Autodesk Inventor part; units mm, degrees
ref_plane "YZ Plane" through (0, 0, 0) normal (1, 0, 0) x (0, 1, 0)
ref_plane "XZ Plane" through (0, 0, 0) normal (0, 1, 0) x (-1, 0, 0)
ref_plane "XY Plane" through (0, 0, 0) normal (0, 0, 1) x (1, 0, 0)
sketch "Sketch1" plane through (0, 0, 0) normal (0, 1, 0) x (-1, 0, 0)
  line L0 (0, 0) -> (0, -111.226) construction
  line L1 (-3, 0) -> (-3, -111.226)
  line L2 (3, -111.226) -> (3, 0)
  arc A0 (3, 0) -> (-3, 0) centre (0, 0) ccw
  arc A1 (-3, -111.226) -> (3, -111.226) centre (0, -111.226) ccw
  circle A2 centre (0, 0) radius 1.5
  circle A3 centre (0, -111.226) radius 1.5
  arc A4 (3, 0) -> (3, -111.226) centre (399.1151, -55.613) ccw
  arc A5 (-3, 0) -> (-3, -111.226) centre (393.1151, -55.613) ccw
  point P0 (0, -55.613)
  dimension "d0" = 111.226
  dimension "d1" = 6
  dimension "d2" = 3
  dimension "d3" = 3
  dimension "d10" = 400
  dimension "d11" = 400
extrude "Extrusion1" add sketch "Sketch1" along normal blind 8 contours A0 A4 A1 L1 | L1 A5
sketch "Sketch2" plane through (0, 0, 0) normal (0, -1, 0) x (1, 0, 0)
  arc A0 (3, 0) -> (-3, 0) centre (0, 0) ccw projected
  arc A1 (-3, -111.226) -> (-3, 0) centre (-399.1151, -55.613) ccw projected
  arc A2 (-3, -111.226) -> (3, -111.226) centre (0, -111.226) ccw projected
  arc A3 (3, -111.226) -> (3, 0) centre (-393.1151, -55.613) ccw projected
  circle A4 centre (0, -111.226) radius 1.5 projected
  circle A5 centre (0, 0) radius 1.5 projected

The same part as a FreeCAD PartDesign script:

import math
import FreeCAD as App
import Part
import Sketcher

V = App.Vector

doc = App.newDocument("Part")
params = doc.addObject("Spreadsheet::Sheet", "Params")
for row, (alias, value) in enumerate([
    ("sketch1_diameter", "3 mm"),
    ("sketch1_radius", "3 mm"),
    ("sketch1_radius2", "400 mm"),
    ("pad1_length", "8 mm"),
], start=1):
    params.set(f"A{row}", alias)
    params.set(f"B{row}", "=" + value)
    params.setAlias(f"B{row}", alias)

body = doc.addObject("PartDesign::Body", "Body")

# Sketch on XZ plane
sketch1 = body.newObject("Sketcher::SketchObject", "Sketch")
sketch1.AttachmentSupport = (doc.getObject("XZ_Plane"), [""])
sketch1.MapMode = "FlatFace"
sketch1.addGeometry(Part.ArcOfCircle(Part.Circle(V(0, 0, 0), V(0, 0, 1), 3), math.radians(0), math.radians(180)), False)
sketch1.addGeometry(Part.ArcOfCircle(Part.Circle(V(-393.1151, -55.613, 0), V(0, 0, 1), 399.999973), math.radians(-7.991866), math.radians(7.991866)), False)
sketch1.addGeometry(Part.ArcOfCircle(Part.Circle(V(0, -111.226, 0), V(0, 0, 1), 3), math.radians(180), math.radians(360)), False)
sketch1.addGeometry(Part.ArcOfCircle(Part.Circle(V(-399.1151, -55.613, 0), V(0, 0, 1), 399.999973), math.radians(-7.991866), math.radians(7.991866)), False)
sketch1.addGeometry(Part.Circle(V(0, -111.226, 0), V(0, 0, 1), 1.5), False)
sketch1.addGeometry(Part.Circle(V(0, 0, 0), V(0, 0, 1), 1.5), False)
sketch1.addConstraint(Sketcher.Constraint("Coincident", 0, 1, 1, 2))
sketch1.addConstraint(Sketcher.Constraint("Coincident", 1, 1, 2, 2))
sketch1.addConstraint(Sketcher.Constraint("Coincident", 2, 1, 3, 1))
sketch1.addConstraint(Sketcher.Constraint("Coincident", 3, 2, 0, 2))
sketch1.addConstraint(Sketcher.Constraint("Coincident", 0, 3, -1, 1))
sketch1.addConstraint(Sketcher.Constraint("Coincident", 5, 3, -1, 1))
sketch1.addConstraint(Sketcher.Constraint("Coincident", 4, 3, 2, 3))
sketch1.addConstraint(Sketcher.Constraint("Equal", 0, 2))
sketch1.addConstraint(Sketcher.Constraint("Equal", 1, 3))
sketch1.addConstraint(Sketcher.Constraint("Equal", 4, 5))
sketch1.addConstraint(Sketcher.Constraint("Symmetric", 1, 1, 2, 1, -2))
sketch1.addConstraint(Sketcher.Constraint("PointOnObject", 0, 1, -1))
sketch1.addConstraint(Sketcher.Constraint("PointOnObject", 3, 2, -1))
sketch1.addConstraint(Sketcher.Constraint("Horizontal", 4, 3, 1, 1))
sketch1.addConstraint(Sketcher.Constraint("Diameter", 4, 3.0))
sketch1.addConstraint(Sketcher.Constraint("Radius", 0, 3.0))
sketch1.addConstraint(Sketcher.Constraint("Radius", 1, 400.0))
sketch1.addConstraint(Sketcher.Constraint("DistanceY", 2, 3, -1, 1, 111.226))
sketch1.setExpression("Constraints[14]", "Params.sketch1_diameter")
sketch1.setExpression("Constraints[15]", "Params.sketch1_radius")
sketch1.setExpression("Constraints[16]", "Params.sketch1_radius2")
pad1 = body.newObject("PartDesign::Pad", "Pad")
pad1.Profile = sketch1
pad1.setExpression("Length", "Params.pad1_length")
pad1.Reversed = True

doc.recompute()
